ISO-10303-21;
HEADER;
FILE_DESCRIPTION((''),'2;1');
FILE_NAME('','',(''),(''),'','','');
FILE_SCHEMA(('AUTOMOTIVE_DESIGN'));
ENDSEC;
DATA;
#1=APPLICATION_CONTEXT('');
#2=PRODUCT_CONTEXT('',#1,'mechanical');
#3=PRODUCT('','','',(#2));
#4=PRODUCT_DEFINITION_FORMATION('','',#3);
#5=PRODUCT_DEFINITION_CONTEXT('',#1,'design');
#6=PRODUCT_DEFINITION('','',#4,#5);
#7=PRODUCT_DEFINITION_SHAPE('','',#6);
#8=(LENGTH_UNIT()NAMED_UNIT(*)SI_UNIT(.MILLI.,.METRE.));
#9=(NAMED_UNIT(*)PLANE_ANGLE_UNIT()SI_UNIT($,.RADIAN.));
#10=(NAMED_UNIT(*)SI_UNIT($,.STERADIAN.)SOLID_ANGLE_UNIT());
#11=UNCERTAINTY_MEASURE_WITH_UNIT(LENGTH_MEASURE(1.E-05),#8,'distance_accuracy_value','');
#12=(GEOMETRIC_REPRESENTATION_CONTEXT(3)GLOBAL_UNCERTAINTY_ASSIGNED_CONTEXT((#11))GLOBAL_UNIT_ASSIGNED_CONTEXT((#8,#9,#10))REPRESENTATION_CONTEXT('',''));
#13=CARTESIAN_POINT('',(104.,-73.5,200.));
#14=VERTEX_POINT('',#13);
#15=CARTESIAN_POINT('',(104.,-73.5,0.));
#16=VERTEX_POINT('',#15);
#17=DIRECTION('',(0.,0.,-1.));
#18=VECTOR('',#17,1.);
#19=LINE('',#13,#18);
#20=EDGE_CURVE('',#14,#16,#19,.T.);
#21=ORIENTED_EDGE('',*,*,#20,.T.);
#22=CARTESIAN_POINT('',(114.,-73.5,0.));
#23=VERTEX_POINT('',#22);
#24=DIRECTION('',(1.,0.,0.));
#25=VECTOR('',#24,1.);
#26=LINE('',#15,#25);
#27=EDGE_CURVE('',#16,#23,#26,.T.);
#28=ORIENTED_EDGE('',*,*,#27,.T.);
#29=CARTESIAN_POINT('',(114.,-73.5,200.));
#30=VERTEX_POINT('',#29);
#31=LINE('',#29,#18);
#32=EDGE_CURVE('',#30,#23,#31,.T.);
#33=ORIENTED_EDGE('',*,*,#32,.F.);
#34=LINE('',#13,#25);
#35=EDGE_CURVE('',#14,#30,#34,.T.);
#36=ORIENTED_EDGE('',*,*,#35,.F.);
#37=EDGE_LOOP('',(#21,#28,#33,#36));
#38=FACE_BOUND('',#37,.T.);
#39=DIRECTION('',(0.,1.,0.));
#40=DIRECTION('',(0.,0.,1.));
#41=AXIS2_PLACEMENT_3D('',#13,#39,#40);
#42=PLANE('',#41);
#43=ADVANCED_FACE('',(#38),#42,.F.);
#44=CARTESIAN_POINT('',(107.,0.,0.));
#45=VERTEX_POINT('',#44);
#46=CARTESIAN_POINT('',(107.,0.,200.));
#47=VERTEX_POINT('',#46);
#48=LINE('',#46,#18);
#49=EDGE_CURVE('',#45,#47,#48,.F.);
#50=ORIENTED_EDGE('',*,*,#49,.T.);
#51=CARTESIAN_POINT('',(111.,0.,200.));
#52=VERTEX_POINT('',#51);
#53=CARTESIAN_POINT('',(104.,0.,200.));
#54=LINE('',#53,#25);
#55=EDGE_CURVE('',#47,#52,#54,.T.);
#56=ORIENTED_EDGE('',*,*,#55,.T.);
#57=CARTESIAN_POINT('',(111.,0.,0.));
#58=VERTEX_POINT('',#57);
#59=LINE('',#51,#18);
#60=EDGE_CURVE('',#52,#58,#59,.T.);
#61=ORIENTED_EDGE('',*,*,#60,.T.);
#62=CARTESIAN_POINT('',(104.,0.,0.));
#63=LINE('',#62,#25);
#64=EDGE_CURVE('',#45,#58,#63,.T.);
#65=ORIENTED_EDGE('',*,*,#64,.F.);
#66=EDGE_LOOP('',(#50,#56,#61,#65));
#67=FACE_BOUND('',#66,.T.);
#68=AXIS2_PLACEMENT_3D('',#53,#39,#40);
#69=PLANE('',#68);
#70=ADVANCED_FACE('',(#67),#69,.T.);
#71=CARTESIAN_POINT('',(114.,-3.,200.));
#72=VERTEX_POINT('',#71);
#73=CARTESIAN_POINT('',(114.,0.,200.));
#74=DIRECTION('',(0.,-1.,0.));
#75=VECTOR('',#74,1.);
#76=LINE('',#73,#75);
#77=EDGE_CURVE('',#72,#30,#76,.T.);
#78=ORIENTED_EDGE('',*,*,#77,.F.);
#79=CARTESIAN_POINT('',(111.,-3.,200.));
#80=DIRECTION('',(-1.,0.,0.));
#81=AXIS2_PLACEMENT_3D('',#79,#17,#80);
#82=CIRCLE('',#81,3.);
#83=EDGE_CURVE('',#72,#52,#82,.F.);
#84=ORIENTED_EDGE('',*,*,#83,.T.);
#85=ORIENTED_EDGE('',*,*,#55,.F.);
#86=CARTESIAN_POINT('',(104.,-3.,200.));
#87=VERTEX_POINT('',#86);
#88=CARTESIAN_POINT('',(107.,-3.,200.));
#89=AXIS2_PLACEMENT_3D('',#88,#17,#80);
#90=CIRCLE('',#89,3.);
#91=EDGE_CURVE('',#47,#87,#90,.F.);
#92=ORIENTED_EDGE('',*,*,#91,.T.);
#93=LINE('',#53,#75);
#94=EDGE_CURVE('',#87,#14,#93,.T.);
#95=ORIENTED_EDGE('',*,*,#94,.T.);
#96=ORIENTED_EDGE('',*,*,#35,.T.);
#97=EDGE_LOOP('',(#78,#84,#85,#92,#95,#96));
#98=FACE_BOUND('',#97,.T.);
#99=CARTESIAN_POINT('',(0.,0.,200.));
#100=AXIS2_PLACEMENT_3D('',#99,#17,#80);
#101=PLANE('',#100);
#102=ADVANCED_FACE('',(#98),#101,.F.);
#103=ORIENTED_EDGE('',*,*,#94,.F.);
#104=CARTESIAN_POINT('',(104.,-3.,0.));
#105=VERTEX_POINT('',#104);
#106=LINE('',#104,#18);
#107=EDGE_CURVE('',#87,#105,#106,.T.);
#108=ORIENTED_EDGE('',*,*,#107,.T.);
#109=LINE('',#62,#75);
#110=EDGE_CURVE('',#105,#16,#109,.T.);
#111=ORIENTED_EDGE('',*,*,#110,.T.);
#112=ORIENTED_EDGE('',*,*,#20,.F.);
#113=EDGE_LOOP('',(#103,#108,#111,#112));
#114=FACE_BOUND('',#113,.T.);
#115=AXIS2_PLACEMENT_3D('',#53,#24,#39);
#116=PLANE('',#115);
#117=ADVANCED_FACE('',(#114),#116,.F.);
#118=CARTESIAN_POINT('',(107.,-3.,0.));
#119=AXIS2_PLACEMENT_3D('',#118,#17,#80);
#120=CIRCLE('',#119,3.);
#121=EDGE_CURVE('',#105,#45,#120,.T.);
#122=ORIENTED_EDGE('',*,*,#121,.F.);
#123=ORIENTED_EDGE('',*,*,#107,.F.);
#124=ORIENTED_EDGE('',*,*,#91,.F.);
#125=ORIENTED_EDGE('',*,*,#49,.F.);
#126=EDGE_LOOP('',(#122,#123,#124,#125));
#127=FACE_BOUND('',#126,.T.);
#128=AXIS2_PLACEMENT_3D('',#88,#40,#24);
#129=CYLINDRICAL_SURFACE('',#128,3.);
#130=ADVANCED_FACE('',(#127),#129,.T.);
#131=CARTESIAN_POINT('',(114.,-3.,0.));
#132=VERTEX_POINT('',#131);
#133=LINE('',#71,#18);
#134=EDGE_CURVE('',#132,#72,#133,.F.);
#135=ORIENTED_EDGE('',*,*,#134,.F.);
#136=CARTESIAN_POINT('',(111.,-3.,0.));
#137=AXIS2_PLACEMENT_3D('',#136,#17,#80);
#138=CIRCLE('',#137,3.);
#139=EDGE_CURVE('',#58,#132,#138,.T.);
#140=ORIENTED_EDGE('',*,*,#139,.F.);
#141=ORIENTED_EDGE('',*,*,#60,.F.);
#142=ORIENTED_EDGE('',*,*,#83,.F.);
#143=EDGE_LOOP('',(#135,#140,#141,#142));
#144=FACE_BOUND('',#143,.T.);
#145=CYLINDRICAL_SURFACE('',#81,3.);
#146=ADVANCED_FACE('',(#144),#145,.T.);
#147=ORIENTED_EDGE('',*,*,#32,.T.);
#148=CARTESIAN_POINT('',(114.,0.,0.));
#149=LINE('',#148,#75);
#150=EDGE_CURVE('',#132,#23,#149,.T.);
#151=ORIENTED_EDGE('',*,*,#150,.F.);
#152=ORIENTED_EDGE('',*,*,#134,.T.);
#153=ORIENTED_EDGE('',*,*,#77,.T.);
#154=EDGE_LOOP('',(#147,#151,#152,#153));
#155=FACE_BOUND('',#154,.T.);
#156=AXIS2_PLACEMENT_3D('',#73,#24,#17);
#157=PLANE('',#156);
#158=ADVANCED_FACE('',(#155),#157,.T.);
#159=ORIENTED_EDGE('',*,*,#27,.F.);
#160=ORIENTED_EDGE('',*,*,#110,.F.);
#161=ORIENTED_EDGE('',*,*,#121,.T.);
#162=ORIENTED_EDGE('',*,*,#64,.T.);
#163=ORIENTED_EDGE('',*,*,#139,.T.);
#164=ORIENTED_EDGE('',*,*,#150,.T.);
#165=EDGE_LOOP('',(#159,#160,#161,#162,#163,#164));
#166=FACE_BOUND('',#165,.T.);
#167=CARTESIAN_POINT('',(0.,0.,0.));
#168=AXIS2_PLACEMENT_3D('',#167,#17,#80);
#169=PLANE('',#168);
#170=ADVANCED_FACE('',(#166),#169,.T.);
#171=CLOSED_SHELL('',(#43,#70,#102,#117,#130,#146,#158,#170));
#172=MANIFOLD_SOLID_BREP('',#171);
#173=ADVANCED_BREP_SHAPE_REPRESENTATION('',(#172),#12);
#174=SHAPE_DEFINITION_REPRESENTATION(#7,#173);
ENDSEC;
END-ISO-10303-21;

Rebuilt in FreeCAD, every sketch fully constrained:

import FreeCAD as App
import Part
import Sketcher
from FreeCAD import Vector
Q = App.Units.Quantity


def edges_at(feature, points):
    """Names of the edges that pass closest to the given points."""
    edges = feature.Shape.Edges
    near = lambda p: min(range(len(edges)), key=lambda i: edges[i].distToShape(Part.Vertex(*p))[0])
    return sorted({f"Edge{near(p) + 1}" for p in points})

doc = App.newDocument("Part")
body = doc.addObject("PartDesign::Body", "Body")

# Sketch on XY plane
sketch1 = doc.addObject("Sketcher::SketchObject", "Sketch")
body.addObject(sketch1)
sketch1.AttachmentSupport = (doc.XY_Plane, [""])
sketch1.MapMode = "FlatFace"
sketch1.addGeometry([
    Part.LineSegment(Vector(104, 0, 0), Vector(104, -74, 0)),
    Part.LineSegment(Vector(104, -74, 0), Vector(114, -74, 0)),
    Part.LineSegment(Vector(114, -74, 0), Vector(114, 0, 0)),
    Part.LineSegment(Vector(114, 0, 0), Vector(104, 0, 0)),
], False)
sketch1.addConstraint([
    Sketcher.Constraint("Coincident", 0, 2, 1, 1),
    Sketcher.Constraint("Coincident", 1, 2, 2, 1),
    Sketcher.Constraint("Coincident", 2, 2, 3, 1),
    Sketcher.Constraint("Coincident", 3, 2, 0, 1),
    Sketcher.Constraint("Vertical", 0),
    Sketcher.Constraint("Horizontal", 1),
    Sketcher.Constraint("Vertical", 2),
    Sketcher.Constraint("Horizontal", 3),
    Sketcher.Constraint("PointOnObject", 2, 2, -1),
    Sketcher.Constraint("DistanceX", 1, 1, 1, 2, Q("10 mm")),
    Sketcher.Constraint("DistanceY", 0, 2, 0, 1, Q("73.5 mm")),
    Sketcher.Constraint("DistanceX", -1, 1, 0, 2, Q("104 mm")),
])
pad1 = doc.addObject("PartDesign::Pad", "Pad")
body.addObject(pad1)
pad1.Profile = sketch1
pad1.Length = 200
doc.recompute()

fillet = doc.addObject("PartDesign::Fillet", "Fillet")
body.addObject(fillet)
fillet.Base = (pad1, edges_at(pad1, [(104, 0, 100), (114, 0, 100)]))
fillet.Radius = 3

doc.recompute()
